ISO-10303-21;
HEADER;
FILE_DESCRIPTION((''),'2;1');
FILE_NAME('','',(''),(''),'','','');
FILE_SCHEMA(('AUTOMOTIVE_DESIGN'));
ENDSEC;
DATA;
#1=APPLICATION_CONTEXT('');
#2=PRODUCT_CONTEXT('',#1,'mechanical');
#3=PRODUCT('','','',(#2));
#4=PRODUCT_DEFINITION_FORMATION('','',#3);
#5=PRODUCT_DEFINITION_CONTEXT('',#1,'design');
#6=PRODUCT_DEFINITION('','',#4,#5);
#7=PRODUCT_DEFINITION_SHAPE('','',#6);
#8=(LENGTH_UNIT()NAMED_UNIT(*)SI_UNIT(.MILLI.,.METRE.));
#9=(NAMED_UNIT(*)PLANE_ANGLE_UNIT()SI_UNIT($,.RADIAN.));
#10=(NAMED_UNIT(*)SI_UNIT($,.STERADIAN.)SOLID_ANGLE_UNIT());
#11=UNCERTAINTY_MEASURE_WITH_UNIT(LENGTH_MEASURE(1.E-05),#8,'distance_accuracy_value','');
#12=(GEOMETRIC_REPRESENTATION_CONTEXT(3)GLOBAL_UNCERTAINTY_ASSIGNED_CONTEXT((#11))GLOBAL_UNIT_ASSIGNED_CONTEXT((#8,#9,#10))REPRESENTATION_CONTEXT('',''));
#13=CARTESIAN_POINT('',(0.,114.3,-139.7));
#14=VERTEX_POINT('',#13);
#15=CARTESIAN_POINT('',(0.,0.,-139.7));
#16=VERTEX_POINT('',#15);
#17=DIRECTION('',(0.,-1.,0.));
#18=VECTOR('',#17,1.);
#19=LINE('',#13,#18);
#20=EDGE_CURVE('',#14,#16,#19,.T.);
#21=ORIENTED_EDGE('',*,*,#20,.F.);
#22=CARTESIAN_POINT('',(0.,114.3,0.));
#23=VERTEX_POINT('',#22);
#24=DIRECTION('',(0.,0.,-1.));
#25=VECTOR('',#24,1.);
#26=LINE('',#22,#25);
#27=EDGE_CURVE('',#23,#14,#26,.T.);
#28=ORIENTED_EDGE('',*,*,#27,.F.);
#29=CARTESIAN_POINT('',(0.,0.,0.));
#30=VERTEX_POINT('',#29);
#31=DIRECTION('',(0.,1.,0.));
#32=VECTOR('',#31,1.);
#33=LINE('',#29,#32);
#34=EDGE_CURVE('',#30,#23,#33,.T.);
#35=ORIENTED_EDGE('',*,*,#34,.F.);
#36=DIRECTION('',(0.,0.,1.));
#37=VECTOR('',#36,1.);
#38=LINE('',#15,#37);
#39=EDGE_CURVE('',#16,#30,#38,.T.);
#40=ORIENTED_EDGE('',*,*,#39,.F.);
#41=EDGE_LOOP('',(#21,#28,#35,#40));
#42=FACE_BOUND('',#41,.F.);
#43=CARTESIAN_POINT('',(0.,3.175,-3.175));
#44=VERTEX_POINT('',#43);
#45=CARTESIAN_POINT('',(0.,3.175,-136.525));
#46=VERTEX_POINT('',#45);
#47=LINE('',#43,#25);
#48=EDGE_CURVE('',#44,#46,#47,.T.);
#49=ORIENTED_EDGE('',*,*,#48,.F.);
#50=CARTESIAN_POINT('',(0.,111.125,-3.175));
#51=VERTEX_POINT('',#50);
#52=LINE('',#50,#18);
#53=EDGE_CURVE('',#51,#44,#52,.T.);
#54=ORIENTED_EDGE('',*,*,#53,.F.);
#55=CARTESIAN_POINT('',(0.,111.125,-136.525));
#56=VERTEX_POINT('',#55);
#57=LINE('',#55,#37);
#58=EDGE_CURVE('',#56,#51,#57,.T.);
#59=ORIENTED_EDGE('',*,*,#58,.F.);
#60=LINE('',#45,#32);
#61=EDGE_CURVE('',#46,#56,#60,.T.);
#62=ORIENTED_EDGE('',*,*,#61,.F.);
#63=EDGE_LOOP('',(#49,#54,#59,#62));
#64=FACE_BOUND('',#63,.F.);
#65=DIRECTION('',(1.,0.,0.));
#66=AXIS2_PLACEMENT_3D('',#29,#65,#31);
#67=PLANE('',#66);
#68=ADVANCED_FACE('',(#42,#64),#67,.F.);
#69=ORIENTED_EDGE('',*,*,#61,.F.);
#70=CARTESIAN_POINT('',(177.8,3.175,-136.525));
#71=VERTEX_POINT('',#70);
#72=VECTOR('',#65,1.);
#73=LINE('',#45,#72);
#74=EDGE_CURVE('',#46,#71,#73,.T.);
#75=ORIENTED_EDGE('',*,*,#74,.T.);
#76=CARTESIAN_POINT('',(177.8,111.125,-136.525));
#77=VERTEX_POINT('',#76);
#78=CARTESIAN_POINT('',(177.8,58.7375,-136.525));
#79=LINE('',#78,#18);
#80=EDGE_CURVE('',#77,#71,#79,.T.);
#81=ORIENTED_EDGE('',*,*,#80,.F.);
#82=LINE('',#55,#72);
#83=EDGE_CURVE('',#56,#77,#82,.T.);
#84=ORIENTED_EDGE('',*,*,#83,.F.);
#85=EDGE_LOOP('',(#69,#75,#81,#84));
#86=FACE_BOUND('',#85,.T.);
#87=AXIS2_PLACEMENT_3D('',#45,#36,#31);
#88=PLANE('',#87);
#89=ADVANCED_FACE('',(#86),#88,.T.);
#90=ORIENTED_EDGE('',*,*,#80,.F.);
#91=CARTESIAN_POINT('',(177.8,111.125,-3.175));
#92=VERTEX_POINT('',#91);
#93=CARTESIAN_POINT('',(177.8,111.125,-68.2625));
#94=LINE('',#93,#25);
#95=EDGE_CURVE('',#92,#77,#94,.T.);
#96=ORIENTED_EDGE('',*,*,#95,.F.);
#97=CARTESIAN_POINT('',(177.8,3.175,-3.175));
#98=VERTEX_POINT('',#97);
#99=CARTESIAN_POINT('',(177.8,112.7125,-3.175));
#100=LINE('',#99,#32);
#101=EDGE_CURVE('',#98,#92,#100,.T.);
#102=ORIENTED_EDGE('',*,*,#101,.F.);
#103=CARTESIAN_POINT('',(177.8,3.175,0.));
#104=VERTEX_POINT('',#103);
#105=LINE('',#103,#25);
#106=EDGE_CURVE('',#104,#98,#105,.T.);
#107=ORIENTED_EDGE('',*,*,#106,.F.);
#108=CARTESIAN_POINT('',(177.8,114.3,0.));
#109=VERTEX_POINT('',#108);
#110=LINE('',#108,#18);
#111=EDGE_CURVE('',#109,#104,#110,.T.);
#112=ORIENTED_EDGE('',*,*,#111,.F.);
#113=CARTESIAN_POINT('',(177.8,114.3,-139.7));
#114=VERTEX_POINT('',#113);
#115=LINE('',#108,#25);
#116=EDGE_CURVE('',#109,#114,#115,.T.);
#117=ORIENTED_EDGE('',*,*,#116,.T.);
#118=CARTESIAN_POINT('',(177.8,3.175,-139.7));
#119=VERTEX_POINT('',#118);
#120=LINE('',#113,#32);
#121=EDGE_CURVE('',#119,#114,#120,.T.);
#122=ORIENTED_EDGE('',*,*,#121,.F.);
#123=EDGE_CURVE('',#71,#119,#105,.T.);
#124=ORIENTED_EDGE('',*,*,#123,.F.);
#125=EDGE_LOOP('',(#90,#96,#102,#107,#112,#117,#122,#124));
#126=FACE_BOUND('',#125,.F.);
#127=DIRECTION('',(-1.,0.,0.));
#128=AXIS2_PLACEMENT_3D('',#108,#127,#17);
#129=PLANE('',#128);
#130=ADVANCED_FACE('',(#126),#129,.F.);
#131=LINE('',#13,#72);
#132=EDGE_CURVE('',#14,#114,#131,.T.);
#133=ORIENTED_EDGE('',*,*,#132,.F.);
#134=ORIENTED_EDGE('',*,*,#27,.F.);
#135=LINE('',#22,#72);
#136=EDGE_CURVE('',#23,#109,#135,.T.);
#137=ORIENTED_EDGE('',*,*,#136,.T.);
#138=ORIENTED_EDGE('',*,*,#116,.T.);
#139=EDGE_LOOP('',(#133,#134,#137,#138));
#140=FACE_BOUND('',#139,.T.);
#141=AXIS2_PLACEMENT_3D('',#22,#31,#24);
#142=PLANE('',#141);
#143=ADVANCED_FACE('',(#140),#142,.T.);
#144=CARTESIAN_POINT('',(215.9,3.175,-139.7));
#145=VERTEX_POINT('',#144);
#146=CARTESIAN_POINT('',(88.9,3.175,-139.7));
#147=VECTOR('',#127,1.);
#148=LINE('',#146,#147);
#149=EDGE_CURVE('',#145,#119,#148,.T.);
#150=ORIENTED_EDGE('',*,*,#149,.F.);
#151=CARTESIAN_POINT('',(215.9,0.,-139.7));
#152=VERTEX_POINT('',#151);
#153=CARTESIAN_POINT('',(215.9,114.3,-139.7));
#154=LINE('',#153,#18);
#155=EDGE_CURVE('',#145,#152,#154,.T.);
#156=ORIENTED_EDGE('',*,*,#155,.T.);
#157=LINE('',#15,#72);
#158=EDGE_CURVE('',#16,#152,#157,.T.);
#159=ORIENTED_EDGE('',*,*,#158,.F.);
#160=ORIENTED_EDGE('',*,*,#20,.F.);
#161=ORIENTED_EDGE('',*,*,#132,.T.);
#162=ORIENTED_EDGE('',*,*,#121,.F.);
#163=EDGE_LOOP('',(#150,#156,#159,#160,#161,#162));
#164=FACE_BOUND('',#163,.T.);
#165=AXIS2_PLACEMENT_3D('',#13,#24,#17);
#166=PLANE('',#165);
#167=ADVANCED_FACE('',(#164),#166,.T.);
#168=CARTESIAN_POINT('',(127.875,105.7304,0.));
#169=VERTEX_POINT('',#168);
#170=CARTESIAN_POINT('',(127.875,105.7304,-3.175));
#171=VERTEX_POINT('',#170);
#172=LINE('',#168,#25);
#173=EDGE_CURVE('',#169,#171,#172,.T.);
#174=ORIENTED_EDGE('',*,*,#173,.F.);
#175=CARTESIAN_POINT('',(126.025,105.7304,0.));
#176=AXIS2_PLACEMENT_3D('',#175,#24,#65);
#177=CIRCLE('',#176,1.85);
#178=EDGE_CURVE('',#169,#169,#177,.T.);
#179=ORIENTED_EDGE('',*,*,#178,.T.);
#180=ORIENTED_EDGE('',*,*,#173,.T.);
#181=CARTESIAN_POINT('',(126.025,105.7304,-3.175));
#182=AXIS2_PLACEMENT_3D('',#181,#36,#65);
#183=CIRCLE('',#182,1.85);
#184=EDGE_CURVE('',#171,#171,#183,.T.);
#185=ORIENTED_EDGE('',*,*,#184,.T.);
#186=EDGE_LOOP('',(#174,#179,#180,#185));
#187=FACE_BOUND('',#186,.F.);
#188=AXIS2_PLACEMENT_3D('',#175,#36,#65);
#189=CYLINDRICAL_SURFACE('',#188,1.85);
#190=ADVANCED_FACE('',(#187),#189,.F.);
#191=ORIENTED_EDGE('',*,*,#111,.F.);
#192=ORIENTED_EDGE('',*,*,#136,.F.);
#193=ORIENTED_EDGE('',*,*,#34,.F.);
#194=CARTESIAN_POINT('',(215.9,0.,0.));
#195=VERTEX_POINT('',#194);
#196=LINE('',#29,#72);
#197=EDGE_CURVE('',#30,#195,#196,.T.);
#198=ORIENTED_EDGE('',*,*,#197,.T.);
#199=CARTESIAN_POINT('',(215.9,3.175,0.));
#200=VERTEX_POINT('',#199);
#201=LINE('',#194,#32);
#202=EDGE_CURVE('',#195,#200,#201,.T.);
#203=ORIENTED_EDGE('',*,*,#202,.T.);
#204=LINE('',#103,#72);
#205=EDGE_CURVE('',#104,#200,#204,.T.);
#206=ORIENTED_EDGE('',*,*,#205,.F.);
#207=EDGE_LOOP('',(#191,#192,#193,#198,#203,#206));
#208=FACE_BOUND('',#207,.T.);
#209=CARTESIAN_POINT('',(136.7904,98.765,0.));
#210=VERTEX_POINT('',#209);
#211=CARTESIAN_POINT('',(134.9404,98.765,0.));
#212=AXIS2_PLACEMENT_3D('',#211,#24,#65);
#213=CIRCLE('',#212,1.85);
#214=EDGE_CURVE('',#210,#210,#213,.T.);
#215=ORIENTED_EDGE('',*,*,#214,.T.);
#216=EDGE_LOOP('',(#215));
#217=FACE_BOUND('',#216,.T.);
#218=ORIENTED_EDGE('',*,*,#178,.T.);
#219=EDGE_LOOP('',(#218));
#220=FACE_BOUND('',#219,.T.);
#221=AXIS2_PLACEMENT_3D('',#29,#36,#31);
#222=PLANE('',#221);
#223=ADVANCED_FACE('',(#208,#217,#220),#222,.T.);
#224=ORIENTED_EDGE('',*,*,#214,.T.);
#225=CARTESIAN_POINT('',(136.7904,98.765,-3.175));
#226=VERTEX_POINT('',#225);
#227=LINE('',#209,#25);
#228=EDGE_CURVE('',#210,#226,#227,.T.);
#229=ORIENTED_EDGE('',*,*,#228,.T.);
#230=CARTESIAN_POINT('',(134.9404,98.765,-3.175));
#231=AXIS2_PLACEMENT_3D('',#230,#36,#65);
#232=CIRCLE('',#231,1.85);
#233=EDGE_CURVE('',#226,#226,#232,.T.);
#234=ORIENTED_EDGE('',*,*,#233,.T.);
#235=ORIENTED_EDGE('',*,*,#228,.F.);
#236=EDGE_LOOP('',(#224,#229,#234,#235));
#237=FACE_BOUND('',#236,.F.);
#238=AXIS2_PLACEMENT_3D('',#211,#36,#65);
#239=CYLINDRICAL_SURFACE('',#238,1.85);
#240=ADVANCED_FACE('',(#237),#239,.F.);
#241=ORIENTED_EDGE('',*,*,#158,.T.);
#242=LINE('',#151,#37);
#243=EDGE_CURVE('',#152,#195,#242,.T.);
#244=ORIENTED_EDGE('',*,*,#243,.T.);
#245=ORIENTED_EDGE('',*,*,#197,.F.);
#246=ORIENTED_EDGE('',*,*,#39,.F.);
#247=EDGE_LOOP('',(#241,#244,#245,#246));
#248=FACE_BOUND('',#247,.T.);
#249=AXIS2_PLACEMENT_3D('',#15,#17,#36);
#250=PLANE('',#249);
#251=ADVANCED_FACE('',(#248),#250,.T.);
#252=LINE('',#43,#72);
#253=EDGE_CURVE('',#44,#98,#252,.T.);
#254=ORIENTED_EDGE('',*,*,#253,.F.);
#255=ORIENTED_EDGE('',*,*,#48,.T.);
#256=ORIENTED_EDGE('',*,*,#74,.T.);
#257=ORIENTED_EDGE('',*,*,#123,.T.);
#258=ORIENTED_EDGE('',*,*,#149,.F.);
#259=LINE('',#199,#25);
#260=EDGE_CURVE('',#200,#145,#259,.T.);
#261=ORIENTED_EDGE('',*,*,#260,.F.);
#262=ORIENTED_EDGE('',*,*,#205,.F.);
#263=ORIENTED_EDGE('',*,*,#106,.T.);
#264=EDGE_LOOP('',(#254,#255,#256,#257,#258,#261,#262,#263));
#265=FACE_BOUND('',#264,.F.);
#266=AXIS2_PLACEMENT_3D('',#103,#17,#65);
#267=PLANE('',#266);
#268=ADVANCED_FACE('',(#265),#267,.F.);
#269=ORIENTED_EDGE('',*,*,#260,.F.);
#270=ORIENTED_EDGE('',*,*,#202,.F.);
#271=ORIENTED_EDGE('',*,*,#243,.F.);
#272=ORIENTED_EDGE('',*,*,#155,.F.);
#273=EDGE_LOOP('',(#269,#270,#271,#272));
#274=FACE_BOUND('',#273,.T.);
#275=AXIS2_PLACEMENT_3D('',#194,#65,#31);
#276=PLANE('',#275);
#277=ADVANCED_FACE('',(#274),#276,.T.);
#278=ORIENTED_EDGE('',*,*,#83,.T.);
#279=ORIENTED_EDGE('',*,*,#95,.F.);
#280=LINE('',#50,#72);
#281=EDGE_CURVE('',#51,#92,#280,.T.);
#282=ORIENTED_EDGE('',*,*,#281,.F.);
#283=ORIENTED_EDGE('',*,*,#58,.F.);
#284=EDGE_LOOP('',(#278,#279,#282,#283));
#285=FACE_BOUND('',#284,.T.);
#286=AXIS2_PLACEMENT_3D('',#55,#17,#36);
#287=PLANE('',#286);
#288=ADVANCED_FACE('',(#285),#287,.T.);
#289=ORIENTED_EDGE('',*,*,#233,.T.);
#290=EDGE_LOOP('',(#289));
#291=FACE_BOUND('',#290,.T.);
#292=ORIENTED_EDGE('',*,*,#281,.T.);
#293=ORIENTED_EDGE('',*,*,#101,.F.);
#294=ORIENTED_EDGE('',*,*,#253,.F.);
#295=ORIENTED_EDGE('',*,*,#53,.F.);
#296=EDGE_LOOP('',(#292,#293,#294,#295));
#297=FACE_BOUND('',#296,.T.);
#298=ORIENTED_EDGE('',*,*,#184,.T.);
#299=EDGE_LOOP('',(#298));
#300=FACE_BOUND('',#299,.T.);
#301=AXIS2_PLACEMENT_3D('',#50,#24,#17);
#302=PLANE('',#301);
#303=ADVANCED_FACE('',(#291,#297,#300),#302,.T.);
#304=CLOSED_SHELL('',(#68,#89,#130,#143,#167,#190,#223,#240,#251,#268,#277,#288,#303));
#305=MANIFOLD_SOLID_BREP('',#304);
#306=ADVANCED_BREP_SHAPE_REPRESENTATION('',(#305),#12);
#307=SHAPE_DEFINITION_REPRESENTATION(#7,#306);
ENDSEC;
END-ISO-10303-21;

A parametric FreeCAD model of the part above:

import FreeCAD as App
import Part
import Sketcher

V = App.Vector
Q = App.Units.Quantity


def add_polygon(sketch, points):
    """Adds a closed chain of lines whose ends are joined by coincident constraints."""
    first, n = sketch.GeometryCount, len(points)
    for a, b in zip(points, points[1:] + points[:1]):
        sketch.addGeometry(Part.LineSegment(App.Vector(*a, 0), App.Vector(*b, 0)), False)
    for i in range(n):
        sketch.addConstraint(Sketcher.Constraint("Coincident", first + i, 2, first + (i + 1) % n, 1))

doc = App.newDocument("Part")
body = doc.addObject("PartDesign::Body", "Body")

sketch1 = doc.addObject("Sketcher::SketchObject", "Sketch")
body.addObject(sketch1)
sketch1.AttachmentSupport = (doc.YZ_Plane, [""])
sketch1.MapMode = "FlatFace"
add_polygon(sketch1, [(114, 0), (0, 0), (0, -140), (114, -140)])
add_polygon(sketch1, [(111, -3), (111, -137), (3, -137), (3, -3)])
sketch1.addConstraint(Sketcher.Constraint("Horizontal", 0))
sketch1.addConstraint(Sketcher.Constraint("Vertical", 1))
sketch1.addConstraint(Sketcher.Constraint("Horizontal", 2))
sketch1.addConstraint(Sketcher.Constraint("Vertical", 3))
sketch1.addConstraint(Sketcher.Constraint("Vertical", 4))
sketch1.addConstraint(Sketcher.Constraint("Horizontal", 5))
sketch1.addConstraint(Sketcher.Constraint("Vertical", 6))
sketch1.addConstraint(Sketcher.Constraint("Horizontal", 7))
sketch1.addConstraint(Sketcher.Constraint("Coincident", 0, 2, -1, 1))
sketch1.addConstraint(Sketcher.Constraint("DistanceX", 0, 2, 0, 1, Q("4.5 in")))
sketch1.addConstraint(Sketcher.Constraint("DistanceY", 1, 2, 1, 1, Q("5.5 in")))
sketch1.addConstraint(Sketcher.Constraint("DistanceX", -1, 1, 5, 2, Q("0.125 in")))
sketch1.addConstraint(Sketcher.Constraint("DistanceY", 6, 2, -1, 1, Q("0.125 in")))
sketch1.addConstraint(Sketcher.Constraint("DistanceX", 4, 2, 2, 2, Q("0.125 in")))
sketch1.addConstraint(Sketcher.Constraint("DistanceY", 2, 2, 4, 2, Q("0.125 in")))
pad1 = doc.addObject("PartDesign::Pad", "Pad")
body.addObject(pad1)
pad1.Profile = sketch1
pad1.Length = Q("8.5 in")

sketch2 = doc.addObject("Sketcher::SketchObject", "Sketch001")
body.addObject(sketch2)
sketch2.AttachmentSupport = (doc.XY_Plane, [""])
sketch2.MapMode = "FlatFace"
add_polygon(sketch2, [(216, 3), (216, 114), (178, 114), (178, 3)])
sketch2.addConstraint(Sketcher.Constraint("Vertical", 0))
sketch2.addConstraint(Sketcher.Constraint("Horizontal", 1))
sketch2.addConstraint(Sketcher.Constraint("Vertical", 2))
sketch2.addConstraint(Sketcher.Constraint("Horizontal", 3))
sketch2.addConstraint(Sketcher.Constraint("DistanceX", 1, 2, 1, 1, Q("1.5 in")))
sketch2.addConstraint(Sketcher.Constraint("DistanceY", 0, 1, 0, 2, Q("4.375 in")))
sketch2.addConstraint(Sketcher.Constraint("DistanceX", -1, 1, 1, 2, Q("7 in")))
sketch2.addConstraint(Sketcher.Constraint("DistanceY", -1, 1, 0, 2, Q("4.5 in")))
pocket1 = doc.addObject("PartDesign::Pocket", "Pocket")
body.addObject(pocket1)
pocket1.Profile = sketch2
pocket1.Type = "ThroughAll"

sketch3 = doc.addObject("Sketcher::SketchObject", "Sketch002")
body.addObject(sketch3)
sketch3.AttachmentSupport = (doc.XY_Plane, [""])
sketch3.MapMode = "FlatFace"
sketch3.addGeometry(Part.Circle(V(126, 105.7, 0), V(0, 0, 1), 1.9), False)
sketch3.addGeometry(Part.Circle(V(134.9, 98.8, 0), V(0, 0, 1), 1.9), False)
sketch3.addConstraint(Sketcher.Constraint("Equal", 0, 1))
sketch3.addConstraint(Sketcher.Constraint("Diameter", 0, 3.7))
sketch3.addConstraint(Sketcher.Constraint("DistanceX", 0, 3, 1, 3, Q("0.351 in")))
sketch3.addConstraint(Sketcher.Constraint("DistanceX", -1, 1, 0, 3, 126.025))
sketch3.addConstraint(Sketcher.Constraint("DistanceY", -1, 1, 0, 3, 105.7304))
sketch3.addConstraint(Sketcher.Constraint("DistanceY", -1, 1, 1, 3, 98.765))
pocket2 = doc.addObject("PartDesign::Pocket", "Pocket001")
body.addObject(pocket2)
pocket2.Profile = sketch3
pocket2.Length = Q("1 in")

doc.recompute()
